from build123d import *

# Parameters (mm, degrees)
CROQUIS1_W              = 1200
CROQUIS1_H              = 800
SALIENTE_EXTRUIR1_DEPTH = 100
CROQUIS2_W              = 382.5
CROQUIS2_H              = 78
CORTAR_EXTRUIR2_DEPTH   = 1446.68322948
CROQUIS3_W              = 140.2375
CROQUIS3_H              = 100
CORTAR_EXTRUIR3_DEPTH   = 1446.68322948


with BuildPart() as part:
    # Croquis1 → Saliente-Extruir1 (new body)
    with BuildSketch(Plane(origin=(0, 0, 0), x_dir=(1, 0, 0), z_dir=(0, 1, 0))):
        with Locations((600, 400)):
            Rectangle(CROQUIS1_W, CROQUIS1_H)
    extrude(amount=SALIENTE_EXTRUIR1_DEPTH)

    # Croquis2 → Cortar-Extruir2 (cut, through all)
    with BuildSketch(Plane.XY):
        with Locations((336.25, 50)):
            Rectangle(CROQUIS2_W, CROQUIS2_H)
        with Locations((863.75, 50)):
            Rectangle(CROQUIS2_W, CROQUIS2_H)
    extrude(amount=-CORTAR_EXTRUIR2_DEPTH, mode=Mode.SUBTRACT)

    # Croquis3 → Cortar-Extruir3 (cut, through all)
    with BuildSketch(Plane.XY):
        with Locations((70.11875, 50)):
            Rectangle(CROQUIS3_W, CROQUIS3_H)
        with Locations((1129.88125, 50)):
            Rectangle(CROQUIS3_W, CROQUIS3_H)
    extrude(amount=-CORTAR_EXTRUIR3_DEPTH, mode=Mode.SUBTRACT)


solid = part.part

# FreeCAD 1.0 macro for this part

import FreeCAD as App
import Part
import Sketcher
from FreeCAD import Vector


def add_polygon(sketch, points):
    """Adds a closed chain of lines whose ends are joined by coincident constraints."""
    first, n = sketch.GeometryCount, len(points)
    for a, b in zip(points, points[1:] + points[:1]):
        sketch.addGeometry(Part.LineSegment(App.Vector(*a, 0), App.Vector(*b, 0)), False)
    for i in range(n):
        sketch.addConstraint(Sketcher.Constraint("Coincident", first + i, 2, first + (i + 1) % n, 1))

doc = App.newDocument("Part")
body = doc.addObject("PartDesign::Body", "Body")

# Sketch on XZ plane
sketch1 = doc.addObject("Sketcher::SketchObject", "Sketch")
body.addObject(sketch1)
sketch1.AttachmentSupport = (doc.XZ_Plane, [""])
sketch1.MapMode = "FlatFace"
add_polygon(sketch1, [(0, -800), (0, 0), (1200, 0), (1200, -800)])  # lines 0-3
sketch1.addConstraint([
    Sketcher.Constraint("Vertical", 0),
    Sketcher.Constraint("Horizontal", 1),
    Sketcher.Constraint("Vertical", 2),
    Sketcher.Constraint("Horizontal", 3),
    Sketcher.Constraint("Coincident", 0, 2, -1, 1),
    Sketcher.Constraint("DistanceX", 1, 1, 1, 2, 1200.0),
    Sketcher.Constraint("DistanceY", 0, 1, 0, 2, 800.0),
])
pad1 = doc.addObject("PartDesign::Pad", "Pad")
body.addObject(pad1)
pad1.Profile = sketch1
pad1.Length = 100
pad1.Reversed = True

# Sketch on XY plane
sketch2 = doc.addObject("Sketcher::SketchObject", "Sketch001")
body.addObject(sketch2)
sketch2.AttachmentSupport = (doc.XY_Plane, [""])
sketch2.MapMode = "FlatFace"
add_polygon(sketch2, [(145, 89), (145, 11), (528, 11), (528, 89)])  # lines 0-3
add_polygon(sketch2, [(672, 89), (672, 11), (1055, 11), (1055, 89)])  # lines 4-7
sketch2.addConstraint([
    Sketcher.Constraint("Vertical", 0),
    Sketcher.Constraint("Horizontal", 1),
    Sketcher.Constraint("Vertical", 2),
    Sketcher.Constraint("Horizontal", 3),
    Sketcher.Constraint("Vertical", 4),
    Sketcher.Constraint("Horizontal", 5),
    Sketcher.Constraint("Vertical", 6),
    Sketcher.Constraint("Horizontal", 7),
    Sketcher.Constraint("Horizontal", 1, 2, 4, 2),
    Sketcher.Constraint("Horizontal", 3, 2, 6, 2),
    Sketcher.Constraint("Equal", 3, 5),
    Sketcher.Constraint("DistanceY", 0, 2, 0, 1, 78.0),
    Sketcher.Constraint("DistanceX", 1, 1, 1, 2, 382.5),
    Sketcher.Constraint("DistanceX", -1, 1, 0, 2, 145.0),
    Sketcher.Constraint("DistanceY", -1, 1, 0, 2, 11.0),
    Sketcher.Constraint("DistanceX", -1, 1, 5, 2, 1055.0),
])
pocket1 = doc.addObject("PartDesign::Pocket", "Pocket")
body.addObject(pocket1)
pocket1.Profile = sketch2
pocket1.Type = "ThroughAll"

# Sketch on XY plane
sketch3 = doc.addObject("Sketcher::SketchObject", "Sketch002")
body.addObject(sketch3)
sketch3.AttachmentSupport = (doc.XY_Plane, [""])
sketch3.MapMode = "FlatFace"
add_polygon(sketch3, [(0, 100), (0, 0), (140, 0), (140, 100)])  # lines 0-3
add_polygon(sketch3, [(1060, 100), (1060, 0), (1200, 0), (1200, 100)])  # lines 4-7
sketch3.addConstraint([
    Sketcher.Constraint("Vertical", 0),
    Sketcher.Constraint("Horizontal", 1),
    Sketcher.Constraint("Vertical", 2),
    Sketcher.Constraint("Horizontal", 3),
    Sketcher.Constraint("Vertical", 4),
    Sketcher.Constraint("Horizontal", 5),
    Sketcher.Constraint("Vertical", 6),
    Sketcher.Constraint("Horizontal", 7),
    Sketcher.Constraint("Coincident", 0, 2, -1, 1),
    Sketcher.Constraint("PointOnObject", 4, 2, -1),
    Sketcher.Constraint("Horizontal", 3, 2, 6, 2),
    Sketcher.Constraint("Equal", 3, 5),
    Sketcher.Constraint("DistanceY", 0, 2, 0, 1, 100.0),
    Sketcher.Constraint("DistanceX", -1, 1, 5, 2, 1200.0),
    Sketcher.Constraint("DistanceX", 1, 1, 1, 2, 140.2375),
])
pocket2 = doc.addObject("PartDesign::Pocket", "Pocket001")
body.addObject(pocket2)
pocket2.Profile = sketch3
pocket2.Type = "ThroughAll"

doc.recompute()
